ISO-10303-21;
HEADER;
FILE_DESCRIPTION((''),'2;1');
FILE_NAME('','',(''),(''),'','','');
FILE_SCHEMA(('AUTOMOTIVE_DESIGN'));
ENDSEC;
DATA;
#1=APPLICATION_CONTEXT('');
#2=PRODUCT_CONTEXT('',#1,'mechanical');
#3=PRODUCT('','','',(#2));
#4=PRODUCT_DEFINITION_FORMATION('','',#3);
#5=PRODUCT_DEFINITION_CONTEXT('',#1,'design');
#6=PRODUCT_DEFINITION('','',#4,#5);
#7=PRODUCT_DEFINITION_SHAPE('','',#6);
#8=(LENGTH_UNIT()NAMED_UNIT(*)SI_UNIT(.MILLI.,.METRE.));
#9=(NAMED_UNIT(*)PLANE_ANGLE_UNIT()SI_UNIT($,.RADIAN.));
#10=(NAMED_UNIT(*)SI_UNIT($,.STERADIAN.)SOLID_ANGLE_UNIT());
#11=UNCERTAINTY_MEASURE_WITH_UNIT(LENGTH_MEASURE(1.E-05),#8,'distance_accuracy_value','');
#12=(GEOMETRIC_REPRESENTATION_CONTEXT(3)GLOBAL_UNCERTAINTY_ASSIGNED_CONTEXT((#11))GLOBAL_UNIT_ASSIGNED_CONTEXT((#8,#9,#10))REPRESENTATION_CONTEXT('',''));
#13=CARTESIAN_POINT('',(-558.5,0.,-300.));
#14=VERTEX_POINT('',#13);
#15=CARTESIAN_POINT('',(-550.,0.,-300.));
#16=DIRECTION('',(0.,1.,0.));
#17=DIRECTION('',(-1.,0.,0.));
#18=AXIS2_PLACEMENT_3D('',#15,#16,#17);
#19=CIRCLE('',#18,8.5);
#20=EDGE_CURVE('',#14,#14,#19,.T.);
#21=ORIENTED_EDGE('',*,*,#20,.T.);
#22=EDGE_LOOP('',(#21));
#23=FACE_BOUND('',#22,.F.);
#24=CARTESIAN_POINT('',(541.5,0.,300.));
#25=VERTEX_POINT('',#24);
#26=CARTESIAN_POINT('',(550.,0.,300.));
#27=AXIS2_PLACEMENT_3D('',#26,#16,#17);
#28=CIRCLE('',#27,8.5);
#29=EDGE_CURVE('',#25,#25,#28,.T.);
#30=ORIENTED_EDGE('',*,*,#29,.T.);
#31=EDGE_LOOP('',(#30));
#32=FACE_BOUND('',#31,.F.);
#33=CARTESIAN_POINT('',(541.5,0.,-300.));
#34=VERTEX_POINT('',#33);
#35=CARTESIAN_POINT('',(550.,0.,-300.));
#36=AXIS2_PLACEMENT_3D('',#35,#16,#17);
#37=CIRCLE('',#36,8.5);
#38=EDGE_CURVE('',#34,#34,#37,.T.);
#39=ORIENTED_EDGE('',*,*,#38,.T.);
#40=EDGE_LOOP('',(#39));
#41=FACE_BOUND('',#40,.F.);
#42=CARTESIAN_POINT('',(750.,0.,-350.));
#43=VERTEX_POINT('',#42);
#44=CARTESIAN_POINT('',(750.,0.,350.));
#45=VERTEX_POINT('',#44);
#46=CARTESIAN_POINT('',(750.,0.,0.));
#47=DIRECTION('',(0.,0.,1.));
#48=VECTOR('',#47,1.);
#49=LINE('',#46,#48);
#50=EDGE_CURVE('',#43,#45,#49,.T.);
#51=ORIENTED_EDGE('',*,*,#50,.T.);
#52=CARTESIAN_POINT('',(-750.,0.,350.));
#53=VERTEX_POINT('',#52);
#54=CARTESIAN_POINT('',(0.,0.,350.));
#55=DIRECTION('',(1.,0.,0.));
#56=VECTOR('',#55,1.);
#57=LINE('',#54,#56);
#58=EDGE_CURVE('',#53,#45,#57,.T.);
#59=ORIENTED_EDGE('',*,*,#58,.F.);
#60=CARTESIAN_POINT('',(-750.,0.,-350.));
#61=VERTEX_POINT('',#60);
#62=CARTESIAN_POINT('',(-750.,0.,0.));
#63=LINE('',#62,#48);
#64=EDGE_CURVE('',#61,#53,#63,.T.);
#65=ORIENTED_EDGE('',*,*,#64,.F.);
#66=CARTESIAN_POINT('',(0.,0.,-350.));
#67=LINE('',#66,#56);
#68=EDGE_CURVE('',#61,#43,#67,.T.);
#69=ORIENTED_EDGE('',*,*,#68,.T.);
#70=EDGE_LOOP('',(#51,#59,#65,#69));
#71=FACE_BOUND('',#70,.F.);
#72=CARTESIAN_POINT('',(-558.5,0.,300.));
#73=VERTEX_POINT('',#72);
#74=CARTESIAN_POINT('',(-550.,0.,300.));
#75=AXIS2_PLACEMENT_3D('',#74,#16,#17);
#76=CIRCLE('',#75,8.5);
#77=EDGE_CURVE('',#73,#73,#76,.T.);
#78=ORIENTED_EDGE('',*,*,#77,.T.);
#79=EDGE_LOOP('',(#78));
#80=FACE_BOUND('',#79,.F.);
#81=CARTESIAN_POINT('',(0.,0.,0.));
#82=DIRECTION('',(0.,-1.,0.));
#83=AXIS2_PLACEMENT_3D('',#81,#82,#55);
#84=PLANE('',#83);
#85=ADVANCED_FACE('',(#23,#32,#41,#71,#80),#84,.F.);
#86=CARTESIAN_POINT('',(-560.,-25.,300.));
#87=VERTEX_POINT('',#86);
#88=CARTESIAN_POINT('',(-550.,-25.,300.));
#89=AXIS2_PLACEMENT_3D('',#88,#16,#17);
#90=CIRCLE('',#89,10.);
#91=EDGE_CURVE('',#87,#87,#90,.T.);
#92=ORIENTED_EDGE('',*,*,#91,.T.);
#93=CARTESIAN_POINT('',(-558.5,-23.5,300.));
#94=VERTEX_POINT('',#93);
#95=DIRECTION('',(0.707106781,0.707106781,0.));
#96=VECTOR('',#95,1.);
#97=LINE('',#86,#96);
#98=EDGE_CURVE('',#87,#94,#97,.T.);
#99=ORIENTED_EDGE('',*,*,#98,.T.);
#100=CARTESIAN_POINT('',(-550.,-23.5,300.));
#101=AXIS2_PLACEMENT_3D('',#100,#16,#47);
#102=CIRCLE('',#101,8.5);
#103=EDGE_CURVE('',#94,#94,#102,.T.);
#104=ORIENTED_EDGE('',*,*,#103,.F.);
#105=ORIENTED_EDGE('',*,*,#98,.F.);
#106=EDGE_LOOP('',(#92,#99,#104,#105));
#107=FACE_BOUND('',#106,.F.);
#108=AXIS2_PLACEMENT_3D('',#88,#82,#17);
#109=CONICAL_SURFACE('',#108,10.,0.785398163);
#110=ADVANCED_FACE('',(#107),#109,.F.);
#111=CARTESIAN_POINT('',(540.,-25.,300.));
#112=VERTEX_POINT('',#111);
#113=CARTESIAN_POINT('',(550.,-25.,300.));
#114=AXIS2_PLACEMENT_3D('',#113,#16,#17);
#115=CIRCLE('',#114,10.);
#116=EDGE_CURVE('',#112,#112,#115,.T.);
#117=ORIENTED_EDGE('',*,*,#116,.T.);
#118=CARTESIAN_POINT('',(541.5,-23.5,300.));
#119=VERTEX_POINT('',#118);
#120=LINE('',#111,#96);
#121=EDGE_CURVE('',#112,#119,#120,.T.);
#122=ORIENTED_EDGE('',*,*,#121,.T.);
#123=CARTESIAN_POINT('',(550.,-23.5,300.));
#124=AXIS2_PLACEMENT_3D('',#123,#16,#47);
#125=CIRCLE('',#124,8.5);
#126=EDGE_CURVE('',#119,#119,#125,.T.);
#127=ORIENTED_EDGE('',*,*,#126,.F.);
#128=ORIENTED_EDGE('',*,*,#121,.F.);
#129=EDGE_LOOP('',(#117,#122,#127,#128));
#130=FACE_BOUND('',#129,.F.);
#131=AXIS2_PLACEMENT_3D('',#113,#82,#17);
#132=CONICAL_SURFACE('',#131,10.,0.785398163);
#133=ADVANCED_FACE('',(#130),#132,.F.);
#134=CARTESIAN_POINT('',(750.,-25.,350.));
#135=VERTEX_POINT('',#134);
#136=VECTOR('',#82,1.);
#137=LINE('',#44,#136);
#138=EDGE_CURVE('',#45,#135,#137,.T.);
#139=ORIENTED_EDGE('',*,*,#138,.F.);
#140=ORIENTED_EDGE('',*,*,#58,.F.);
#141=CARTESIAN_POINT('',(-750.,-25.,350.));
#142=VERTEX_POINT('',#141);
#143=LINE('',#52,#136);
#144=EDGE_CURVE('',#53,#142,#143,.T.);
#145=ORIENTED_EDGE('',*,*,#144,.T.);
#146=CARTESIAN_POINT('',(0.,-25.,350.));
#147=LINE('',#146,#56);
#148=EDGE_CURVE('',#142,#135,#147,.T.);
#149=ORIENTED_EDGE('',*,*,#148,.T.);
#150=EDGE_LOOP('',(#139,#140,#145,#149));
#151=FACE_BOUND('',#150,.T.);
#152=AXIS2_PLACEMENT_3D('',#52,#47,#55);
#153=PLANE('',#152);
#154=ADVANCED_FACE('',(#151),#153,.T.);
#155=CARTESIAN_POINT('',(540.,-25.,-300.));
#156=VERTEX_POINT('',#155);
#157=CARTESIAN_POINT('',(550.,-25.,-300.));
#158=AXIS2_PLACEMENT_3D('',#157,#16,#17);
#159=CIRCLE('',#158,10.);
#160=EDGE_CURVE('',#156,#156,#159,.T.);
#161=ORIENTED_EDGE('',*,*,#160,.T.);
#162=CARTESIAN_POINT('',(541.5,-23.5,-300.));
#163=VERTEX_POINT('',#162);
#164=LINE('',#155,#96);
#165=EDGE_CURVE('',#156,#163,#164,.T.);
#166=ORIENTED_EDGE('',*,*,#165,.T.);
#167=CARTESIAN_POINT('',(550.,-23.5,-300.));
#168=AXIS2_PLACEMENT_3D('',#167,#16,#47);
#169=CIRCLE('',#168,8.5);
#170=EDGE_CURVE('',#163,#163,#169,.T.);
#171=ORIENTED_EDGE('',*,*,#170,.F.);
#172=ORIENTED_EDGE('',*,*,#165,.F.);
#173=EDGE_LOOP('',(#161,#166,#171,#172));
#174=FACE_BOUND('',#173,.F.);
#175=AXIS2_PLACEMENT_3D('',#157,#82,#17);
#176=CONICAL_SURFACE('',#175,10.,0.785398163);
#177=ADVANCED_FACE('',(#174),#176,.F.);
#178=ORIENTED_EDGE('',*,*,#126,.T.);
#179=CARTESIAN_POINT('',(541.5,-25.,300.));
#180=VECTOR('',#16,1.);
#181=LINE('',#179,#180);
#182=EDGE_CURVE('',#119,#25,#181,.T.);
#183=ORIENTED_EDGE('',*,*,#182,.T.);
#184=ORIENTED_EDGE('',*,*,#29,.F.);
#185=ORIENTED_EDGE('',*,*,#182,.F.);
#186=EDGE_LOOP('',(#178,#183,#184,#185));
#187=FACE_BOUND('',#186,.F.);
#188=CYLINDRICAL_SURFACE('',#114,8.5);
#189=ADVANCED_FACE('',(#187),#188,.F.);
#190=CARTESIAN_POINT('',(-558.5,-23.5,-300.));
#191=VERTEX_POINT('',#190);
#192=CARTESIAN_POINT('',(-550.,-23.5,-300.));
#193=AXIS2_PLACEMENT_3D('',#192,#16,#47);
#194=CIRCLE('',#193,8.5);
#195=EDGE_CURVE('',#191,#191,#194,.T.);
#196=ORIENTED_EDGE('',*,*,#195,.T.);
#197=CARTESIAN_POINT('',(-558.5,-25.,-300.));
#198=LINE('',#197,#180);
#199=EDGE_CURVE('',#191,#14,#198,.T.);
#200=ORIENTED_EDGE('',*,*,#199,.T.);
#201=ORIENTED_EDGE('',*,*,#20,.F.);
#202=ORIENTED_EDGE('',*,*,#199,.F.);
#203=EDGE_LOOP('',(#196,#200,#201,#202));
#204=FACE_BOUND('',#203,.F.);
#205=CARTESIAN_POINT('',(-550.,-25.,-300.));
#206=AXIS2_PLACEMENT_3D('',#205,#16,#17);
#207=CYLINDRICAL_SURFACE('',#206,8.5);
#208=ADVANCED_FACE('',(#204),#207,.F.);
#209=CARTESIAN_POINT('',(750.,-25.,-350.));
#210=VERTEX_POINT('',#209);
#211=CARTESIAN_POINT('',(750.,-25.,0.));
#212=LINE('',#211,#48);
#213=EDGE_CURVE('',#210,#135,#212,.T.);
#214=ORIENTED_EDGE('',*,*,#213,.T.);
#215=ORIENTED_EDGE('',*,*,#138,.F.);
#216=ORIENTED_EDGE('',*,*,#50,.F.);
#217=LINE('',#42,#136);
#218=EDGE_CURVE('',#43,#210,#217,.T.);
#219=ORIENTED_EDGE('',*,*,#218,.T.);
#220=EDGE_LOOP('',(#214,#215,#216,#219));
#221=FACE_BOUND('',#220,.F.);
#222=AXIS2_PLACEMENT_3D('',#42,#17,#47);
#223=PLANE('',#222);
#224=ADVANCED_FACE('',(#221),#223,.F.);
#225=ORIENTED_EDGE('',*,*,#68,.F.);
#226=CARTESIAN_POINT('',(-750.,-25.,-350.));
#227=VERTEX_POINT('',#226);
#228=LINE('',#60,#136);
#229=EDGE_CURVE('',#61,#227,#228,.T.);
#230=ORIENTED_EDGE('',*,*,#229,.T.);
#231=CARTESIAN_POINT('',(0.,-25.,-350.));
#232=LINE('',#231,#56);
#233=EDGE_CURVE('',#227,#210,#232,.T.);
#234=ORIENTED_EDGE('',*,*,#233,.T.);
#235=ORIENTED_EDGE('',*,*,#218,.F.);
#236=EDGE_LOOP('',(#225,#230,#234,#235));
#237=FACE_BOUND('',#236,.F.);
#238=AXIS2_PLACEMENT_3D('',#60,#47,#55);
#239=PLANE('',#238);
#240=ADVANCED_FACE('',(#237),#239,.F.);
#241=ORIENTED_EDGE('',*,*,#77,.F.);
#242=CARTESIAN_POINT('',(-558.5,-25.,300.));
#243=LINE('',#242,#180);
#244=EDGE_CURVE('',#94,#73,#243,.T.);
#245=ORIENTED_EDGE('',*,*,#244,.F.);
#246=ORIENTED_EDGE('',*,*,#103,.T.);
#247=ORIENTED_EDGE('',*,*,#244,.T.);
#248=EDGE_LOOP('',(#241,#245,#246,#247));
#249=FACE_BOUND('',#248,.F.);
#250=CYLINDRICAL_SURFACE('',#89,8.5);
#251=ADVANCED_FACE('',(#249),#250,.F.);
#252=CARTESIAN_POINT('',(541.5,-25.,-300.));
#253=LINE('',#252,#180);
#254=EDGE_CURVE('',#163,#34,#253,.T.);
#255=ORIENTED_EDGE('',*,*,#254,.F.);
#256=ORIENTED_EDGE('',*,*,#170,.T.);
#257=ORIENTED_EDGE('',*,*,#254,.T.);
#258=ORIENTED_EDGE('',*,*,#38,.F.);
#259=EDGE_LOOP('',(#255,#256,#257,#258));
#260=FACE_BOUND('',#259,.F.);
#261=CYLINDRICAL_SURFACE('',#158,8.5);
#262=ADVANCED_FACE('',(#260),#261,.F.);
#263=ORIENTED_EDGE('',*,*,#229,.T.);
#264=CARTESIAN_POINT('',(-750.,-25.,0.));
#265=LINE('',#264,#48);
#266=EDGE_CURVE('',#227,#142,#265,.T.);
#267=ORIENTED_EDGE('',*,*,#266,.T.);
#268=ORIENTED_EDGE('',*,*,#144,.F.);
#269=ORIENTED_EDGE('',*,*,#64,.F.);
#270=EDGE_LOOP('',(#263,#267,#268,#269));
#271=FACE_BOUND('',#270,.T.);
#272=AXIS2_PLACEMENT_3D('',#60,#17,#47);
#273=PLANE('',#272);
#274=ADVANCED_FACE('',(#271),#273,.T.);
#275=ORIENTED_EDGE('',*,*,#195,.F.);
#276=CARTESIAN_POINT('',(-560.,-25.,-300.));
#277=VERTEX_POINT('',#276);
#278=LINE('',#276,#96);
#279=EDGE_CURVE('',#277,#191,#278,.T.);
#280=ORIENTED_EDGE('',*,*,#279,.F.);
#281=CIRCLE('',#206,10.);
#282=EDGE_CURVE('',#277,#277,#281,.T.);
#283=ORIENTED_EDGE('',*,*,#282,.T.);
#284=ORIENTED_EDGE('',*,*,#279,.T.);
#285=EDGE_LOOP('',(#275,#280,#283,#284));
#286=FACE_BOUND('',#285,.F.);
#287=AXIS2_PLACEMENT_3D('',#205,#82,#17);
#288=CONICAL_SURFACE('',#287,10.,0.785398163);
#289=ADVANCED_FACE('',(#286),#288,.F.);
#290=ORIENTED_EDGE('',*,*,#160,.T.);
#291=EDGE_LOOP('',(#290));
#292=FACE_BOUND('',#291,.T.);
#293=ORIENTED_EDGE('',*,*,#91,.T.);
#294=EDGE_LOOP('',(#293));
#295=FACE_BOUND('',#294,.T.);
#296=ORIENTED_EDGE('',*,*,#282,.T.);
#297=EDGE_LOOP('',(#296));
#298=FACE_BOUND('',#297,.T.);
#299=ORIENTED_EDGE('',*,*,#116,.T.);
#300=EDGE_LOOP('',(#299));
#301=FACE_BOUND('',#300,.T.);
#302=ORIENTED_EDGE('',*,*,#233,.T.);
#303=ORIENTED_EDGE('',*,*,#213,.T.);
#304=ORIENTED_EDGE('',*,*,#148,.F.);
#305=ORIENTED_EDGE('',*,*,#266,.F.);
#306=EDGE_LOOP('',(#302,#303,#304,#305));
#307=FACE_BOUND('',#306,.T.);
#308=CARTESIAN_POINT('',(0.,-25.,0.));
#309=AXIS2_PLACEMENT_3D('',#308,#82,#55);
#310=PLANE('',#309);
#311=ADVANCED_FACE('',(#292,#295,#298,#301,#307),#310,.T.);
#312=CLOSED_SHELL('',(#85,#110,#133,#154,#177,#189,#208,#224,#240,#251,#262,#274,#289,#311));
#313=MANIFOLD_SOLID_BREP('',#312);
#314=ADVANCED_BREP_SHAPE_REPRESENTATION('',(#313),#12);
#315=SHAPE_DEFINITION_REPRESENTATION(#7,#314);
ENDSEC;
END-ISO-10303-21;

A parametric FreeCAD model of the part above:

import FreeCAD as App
import Part
import Sketcher
Q = App.Units.Quantity


def add_polygon(sketch, points):
    """Adds a closed chain of lines whose ends are joined by coincident constraints."""
    first, n = sketch.GeometryCount, len(points)
    for a, b in zip(points, points[1:] + points[:1]):
        sketch.addGeometry(Part.LineSegment(App.Vector(*a, 0), App.Vector(*b, 0)), False)
    for i in range(n):
        sketch.addConstraint(Sketcher.Constraint("Coincident", first + i, 2, first + (i + 1) % n, 1))

doc = App.newDocument("Part")
body = doc.addObject("PartDesign::Body", "Body")

# Sketch on XZ plane
sketch1 = doc.addObject("Sketcher::SketchObject", "Sketch")
body.addObject(sketch1)
sketch1.AttachmentSupport = (doc.XZ_Plane, [""])
sketch1.MapMode = "FlatFace"
add_polygon(sketch1, [(-750, 350), (-750, -350), (750, -350), (750, 350)])  # lines 0-3
sketch1.addConstraint([
    Sketcher.Constraint("Vertical", 0),
    Sketcher.Constraint("Horizontal", 1),
    Sketcher.Constraint("Vertical", 2),
    Sketcher.Constraint("Horizontal", 3),
    Sketcher.Constraint("Symmetric", 0, 2, 2, 2, -1, 1),
    Sketcher.Constraint("DistanceX", 1, 1, 1, 2, Q("1500 mm")),
    Sketcher.Constraint("DistanceY", 0, 2, 0, 1, Q("700 mm")),
])
pad1 = doc.addObject("PartDesign::Pad", "Pad")
body.addObject(pad1)
pad1.Profile = sketch1
pad1.Length = 25

# Sketch on XZ plane
sketch2 = doc.addObject("Sketcher::SketchObject", "Sketch001")
body.addObject(sketch2)
sketch2.AttachmentSupport = (doc.XZ_Plane, [""])
sketch2.MapMode = "FlatFace"
sketch2.AttachmentOffset = App.Placement(App.Vector(0, 0, 25), App.Rotation())
sketch2.addGeometry([
    Part.Circle(App.Vector(-550, 300, 0), App.Vector(0, 0, 1), 8),
    Part.Circle(App.Vector(550, 300, 0), App.Vector(0, 0, 1), 8),
    Part.Circle(App.Vector(550, -300, 0), App.Vector(0, 0, 1), 8),
    Part.Circle(App.Vector(-550, -300, 0), App.Vector(0, 0, 1), 8),
], False)
sketch2.addConstraint([
    Sketcher.Constraint("Equal", 0, 1),
    Sketcher.Constraint("Equal", 1, 2),
    Sketcher.Constraint("Equal", 2, 3),
    Sketcher.Constraint("Symmetric", 0, 3, 2, 3, -1, 1),
    Sketcher.Constraint("Symmetric", 1, 3, 3, 3, -1, 1),
    Sketcher.Constraint("Symmetric", 0, 3, 1, 3, -2),
    Sketcher.Constraint("Diameter", 0, Q("17 mm")),
    Sketcher.Constraint("DistanceX", 0, 3, -1, 1, Q("550 mm")),
    Sketcher.Constraint("DistanceY", -1, 1, 0, 3, Q("300 mm")),
])
doc.recompute()
hole = doc.addObject("PartDesign::Hole", "Hole")
body.addObject(hole)
hole.Profile = sketch2
hole.ThreadType = "None"
hole.Diameter = 17
hole.DepthType = "ThroughAll"
hole.HoleCutType = "Countersink"
hole.HoleCutDiameter = 20
hole.HoleCutCountersinkAngle = 90

doc.recompute()
